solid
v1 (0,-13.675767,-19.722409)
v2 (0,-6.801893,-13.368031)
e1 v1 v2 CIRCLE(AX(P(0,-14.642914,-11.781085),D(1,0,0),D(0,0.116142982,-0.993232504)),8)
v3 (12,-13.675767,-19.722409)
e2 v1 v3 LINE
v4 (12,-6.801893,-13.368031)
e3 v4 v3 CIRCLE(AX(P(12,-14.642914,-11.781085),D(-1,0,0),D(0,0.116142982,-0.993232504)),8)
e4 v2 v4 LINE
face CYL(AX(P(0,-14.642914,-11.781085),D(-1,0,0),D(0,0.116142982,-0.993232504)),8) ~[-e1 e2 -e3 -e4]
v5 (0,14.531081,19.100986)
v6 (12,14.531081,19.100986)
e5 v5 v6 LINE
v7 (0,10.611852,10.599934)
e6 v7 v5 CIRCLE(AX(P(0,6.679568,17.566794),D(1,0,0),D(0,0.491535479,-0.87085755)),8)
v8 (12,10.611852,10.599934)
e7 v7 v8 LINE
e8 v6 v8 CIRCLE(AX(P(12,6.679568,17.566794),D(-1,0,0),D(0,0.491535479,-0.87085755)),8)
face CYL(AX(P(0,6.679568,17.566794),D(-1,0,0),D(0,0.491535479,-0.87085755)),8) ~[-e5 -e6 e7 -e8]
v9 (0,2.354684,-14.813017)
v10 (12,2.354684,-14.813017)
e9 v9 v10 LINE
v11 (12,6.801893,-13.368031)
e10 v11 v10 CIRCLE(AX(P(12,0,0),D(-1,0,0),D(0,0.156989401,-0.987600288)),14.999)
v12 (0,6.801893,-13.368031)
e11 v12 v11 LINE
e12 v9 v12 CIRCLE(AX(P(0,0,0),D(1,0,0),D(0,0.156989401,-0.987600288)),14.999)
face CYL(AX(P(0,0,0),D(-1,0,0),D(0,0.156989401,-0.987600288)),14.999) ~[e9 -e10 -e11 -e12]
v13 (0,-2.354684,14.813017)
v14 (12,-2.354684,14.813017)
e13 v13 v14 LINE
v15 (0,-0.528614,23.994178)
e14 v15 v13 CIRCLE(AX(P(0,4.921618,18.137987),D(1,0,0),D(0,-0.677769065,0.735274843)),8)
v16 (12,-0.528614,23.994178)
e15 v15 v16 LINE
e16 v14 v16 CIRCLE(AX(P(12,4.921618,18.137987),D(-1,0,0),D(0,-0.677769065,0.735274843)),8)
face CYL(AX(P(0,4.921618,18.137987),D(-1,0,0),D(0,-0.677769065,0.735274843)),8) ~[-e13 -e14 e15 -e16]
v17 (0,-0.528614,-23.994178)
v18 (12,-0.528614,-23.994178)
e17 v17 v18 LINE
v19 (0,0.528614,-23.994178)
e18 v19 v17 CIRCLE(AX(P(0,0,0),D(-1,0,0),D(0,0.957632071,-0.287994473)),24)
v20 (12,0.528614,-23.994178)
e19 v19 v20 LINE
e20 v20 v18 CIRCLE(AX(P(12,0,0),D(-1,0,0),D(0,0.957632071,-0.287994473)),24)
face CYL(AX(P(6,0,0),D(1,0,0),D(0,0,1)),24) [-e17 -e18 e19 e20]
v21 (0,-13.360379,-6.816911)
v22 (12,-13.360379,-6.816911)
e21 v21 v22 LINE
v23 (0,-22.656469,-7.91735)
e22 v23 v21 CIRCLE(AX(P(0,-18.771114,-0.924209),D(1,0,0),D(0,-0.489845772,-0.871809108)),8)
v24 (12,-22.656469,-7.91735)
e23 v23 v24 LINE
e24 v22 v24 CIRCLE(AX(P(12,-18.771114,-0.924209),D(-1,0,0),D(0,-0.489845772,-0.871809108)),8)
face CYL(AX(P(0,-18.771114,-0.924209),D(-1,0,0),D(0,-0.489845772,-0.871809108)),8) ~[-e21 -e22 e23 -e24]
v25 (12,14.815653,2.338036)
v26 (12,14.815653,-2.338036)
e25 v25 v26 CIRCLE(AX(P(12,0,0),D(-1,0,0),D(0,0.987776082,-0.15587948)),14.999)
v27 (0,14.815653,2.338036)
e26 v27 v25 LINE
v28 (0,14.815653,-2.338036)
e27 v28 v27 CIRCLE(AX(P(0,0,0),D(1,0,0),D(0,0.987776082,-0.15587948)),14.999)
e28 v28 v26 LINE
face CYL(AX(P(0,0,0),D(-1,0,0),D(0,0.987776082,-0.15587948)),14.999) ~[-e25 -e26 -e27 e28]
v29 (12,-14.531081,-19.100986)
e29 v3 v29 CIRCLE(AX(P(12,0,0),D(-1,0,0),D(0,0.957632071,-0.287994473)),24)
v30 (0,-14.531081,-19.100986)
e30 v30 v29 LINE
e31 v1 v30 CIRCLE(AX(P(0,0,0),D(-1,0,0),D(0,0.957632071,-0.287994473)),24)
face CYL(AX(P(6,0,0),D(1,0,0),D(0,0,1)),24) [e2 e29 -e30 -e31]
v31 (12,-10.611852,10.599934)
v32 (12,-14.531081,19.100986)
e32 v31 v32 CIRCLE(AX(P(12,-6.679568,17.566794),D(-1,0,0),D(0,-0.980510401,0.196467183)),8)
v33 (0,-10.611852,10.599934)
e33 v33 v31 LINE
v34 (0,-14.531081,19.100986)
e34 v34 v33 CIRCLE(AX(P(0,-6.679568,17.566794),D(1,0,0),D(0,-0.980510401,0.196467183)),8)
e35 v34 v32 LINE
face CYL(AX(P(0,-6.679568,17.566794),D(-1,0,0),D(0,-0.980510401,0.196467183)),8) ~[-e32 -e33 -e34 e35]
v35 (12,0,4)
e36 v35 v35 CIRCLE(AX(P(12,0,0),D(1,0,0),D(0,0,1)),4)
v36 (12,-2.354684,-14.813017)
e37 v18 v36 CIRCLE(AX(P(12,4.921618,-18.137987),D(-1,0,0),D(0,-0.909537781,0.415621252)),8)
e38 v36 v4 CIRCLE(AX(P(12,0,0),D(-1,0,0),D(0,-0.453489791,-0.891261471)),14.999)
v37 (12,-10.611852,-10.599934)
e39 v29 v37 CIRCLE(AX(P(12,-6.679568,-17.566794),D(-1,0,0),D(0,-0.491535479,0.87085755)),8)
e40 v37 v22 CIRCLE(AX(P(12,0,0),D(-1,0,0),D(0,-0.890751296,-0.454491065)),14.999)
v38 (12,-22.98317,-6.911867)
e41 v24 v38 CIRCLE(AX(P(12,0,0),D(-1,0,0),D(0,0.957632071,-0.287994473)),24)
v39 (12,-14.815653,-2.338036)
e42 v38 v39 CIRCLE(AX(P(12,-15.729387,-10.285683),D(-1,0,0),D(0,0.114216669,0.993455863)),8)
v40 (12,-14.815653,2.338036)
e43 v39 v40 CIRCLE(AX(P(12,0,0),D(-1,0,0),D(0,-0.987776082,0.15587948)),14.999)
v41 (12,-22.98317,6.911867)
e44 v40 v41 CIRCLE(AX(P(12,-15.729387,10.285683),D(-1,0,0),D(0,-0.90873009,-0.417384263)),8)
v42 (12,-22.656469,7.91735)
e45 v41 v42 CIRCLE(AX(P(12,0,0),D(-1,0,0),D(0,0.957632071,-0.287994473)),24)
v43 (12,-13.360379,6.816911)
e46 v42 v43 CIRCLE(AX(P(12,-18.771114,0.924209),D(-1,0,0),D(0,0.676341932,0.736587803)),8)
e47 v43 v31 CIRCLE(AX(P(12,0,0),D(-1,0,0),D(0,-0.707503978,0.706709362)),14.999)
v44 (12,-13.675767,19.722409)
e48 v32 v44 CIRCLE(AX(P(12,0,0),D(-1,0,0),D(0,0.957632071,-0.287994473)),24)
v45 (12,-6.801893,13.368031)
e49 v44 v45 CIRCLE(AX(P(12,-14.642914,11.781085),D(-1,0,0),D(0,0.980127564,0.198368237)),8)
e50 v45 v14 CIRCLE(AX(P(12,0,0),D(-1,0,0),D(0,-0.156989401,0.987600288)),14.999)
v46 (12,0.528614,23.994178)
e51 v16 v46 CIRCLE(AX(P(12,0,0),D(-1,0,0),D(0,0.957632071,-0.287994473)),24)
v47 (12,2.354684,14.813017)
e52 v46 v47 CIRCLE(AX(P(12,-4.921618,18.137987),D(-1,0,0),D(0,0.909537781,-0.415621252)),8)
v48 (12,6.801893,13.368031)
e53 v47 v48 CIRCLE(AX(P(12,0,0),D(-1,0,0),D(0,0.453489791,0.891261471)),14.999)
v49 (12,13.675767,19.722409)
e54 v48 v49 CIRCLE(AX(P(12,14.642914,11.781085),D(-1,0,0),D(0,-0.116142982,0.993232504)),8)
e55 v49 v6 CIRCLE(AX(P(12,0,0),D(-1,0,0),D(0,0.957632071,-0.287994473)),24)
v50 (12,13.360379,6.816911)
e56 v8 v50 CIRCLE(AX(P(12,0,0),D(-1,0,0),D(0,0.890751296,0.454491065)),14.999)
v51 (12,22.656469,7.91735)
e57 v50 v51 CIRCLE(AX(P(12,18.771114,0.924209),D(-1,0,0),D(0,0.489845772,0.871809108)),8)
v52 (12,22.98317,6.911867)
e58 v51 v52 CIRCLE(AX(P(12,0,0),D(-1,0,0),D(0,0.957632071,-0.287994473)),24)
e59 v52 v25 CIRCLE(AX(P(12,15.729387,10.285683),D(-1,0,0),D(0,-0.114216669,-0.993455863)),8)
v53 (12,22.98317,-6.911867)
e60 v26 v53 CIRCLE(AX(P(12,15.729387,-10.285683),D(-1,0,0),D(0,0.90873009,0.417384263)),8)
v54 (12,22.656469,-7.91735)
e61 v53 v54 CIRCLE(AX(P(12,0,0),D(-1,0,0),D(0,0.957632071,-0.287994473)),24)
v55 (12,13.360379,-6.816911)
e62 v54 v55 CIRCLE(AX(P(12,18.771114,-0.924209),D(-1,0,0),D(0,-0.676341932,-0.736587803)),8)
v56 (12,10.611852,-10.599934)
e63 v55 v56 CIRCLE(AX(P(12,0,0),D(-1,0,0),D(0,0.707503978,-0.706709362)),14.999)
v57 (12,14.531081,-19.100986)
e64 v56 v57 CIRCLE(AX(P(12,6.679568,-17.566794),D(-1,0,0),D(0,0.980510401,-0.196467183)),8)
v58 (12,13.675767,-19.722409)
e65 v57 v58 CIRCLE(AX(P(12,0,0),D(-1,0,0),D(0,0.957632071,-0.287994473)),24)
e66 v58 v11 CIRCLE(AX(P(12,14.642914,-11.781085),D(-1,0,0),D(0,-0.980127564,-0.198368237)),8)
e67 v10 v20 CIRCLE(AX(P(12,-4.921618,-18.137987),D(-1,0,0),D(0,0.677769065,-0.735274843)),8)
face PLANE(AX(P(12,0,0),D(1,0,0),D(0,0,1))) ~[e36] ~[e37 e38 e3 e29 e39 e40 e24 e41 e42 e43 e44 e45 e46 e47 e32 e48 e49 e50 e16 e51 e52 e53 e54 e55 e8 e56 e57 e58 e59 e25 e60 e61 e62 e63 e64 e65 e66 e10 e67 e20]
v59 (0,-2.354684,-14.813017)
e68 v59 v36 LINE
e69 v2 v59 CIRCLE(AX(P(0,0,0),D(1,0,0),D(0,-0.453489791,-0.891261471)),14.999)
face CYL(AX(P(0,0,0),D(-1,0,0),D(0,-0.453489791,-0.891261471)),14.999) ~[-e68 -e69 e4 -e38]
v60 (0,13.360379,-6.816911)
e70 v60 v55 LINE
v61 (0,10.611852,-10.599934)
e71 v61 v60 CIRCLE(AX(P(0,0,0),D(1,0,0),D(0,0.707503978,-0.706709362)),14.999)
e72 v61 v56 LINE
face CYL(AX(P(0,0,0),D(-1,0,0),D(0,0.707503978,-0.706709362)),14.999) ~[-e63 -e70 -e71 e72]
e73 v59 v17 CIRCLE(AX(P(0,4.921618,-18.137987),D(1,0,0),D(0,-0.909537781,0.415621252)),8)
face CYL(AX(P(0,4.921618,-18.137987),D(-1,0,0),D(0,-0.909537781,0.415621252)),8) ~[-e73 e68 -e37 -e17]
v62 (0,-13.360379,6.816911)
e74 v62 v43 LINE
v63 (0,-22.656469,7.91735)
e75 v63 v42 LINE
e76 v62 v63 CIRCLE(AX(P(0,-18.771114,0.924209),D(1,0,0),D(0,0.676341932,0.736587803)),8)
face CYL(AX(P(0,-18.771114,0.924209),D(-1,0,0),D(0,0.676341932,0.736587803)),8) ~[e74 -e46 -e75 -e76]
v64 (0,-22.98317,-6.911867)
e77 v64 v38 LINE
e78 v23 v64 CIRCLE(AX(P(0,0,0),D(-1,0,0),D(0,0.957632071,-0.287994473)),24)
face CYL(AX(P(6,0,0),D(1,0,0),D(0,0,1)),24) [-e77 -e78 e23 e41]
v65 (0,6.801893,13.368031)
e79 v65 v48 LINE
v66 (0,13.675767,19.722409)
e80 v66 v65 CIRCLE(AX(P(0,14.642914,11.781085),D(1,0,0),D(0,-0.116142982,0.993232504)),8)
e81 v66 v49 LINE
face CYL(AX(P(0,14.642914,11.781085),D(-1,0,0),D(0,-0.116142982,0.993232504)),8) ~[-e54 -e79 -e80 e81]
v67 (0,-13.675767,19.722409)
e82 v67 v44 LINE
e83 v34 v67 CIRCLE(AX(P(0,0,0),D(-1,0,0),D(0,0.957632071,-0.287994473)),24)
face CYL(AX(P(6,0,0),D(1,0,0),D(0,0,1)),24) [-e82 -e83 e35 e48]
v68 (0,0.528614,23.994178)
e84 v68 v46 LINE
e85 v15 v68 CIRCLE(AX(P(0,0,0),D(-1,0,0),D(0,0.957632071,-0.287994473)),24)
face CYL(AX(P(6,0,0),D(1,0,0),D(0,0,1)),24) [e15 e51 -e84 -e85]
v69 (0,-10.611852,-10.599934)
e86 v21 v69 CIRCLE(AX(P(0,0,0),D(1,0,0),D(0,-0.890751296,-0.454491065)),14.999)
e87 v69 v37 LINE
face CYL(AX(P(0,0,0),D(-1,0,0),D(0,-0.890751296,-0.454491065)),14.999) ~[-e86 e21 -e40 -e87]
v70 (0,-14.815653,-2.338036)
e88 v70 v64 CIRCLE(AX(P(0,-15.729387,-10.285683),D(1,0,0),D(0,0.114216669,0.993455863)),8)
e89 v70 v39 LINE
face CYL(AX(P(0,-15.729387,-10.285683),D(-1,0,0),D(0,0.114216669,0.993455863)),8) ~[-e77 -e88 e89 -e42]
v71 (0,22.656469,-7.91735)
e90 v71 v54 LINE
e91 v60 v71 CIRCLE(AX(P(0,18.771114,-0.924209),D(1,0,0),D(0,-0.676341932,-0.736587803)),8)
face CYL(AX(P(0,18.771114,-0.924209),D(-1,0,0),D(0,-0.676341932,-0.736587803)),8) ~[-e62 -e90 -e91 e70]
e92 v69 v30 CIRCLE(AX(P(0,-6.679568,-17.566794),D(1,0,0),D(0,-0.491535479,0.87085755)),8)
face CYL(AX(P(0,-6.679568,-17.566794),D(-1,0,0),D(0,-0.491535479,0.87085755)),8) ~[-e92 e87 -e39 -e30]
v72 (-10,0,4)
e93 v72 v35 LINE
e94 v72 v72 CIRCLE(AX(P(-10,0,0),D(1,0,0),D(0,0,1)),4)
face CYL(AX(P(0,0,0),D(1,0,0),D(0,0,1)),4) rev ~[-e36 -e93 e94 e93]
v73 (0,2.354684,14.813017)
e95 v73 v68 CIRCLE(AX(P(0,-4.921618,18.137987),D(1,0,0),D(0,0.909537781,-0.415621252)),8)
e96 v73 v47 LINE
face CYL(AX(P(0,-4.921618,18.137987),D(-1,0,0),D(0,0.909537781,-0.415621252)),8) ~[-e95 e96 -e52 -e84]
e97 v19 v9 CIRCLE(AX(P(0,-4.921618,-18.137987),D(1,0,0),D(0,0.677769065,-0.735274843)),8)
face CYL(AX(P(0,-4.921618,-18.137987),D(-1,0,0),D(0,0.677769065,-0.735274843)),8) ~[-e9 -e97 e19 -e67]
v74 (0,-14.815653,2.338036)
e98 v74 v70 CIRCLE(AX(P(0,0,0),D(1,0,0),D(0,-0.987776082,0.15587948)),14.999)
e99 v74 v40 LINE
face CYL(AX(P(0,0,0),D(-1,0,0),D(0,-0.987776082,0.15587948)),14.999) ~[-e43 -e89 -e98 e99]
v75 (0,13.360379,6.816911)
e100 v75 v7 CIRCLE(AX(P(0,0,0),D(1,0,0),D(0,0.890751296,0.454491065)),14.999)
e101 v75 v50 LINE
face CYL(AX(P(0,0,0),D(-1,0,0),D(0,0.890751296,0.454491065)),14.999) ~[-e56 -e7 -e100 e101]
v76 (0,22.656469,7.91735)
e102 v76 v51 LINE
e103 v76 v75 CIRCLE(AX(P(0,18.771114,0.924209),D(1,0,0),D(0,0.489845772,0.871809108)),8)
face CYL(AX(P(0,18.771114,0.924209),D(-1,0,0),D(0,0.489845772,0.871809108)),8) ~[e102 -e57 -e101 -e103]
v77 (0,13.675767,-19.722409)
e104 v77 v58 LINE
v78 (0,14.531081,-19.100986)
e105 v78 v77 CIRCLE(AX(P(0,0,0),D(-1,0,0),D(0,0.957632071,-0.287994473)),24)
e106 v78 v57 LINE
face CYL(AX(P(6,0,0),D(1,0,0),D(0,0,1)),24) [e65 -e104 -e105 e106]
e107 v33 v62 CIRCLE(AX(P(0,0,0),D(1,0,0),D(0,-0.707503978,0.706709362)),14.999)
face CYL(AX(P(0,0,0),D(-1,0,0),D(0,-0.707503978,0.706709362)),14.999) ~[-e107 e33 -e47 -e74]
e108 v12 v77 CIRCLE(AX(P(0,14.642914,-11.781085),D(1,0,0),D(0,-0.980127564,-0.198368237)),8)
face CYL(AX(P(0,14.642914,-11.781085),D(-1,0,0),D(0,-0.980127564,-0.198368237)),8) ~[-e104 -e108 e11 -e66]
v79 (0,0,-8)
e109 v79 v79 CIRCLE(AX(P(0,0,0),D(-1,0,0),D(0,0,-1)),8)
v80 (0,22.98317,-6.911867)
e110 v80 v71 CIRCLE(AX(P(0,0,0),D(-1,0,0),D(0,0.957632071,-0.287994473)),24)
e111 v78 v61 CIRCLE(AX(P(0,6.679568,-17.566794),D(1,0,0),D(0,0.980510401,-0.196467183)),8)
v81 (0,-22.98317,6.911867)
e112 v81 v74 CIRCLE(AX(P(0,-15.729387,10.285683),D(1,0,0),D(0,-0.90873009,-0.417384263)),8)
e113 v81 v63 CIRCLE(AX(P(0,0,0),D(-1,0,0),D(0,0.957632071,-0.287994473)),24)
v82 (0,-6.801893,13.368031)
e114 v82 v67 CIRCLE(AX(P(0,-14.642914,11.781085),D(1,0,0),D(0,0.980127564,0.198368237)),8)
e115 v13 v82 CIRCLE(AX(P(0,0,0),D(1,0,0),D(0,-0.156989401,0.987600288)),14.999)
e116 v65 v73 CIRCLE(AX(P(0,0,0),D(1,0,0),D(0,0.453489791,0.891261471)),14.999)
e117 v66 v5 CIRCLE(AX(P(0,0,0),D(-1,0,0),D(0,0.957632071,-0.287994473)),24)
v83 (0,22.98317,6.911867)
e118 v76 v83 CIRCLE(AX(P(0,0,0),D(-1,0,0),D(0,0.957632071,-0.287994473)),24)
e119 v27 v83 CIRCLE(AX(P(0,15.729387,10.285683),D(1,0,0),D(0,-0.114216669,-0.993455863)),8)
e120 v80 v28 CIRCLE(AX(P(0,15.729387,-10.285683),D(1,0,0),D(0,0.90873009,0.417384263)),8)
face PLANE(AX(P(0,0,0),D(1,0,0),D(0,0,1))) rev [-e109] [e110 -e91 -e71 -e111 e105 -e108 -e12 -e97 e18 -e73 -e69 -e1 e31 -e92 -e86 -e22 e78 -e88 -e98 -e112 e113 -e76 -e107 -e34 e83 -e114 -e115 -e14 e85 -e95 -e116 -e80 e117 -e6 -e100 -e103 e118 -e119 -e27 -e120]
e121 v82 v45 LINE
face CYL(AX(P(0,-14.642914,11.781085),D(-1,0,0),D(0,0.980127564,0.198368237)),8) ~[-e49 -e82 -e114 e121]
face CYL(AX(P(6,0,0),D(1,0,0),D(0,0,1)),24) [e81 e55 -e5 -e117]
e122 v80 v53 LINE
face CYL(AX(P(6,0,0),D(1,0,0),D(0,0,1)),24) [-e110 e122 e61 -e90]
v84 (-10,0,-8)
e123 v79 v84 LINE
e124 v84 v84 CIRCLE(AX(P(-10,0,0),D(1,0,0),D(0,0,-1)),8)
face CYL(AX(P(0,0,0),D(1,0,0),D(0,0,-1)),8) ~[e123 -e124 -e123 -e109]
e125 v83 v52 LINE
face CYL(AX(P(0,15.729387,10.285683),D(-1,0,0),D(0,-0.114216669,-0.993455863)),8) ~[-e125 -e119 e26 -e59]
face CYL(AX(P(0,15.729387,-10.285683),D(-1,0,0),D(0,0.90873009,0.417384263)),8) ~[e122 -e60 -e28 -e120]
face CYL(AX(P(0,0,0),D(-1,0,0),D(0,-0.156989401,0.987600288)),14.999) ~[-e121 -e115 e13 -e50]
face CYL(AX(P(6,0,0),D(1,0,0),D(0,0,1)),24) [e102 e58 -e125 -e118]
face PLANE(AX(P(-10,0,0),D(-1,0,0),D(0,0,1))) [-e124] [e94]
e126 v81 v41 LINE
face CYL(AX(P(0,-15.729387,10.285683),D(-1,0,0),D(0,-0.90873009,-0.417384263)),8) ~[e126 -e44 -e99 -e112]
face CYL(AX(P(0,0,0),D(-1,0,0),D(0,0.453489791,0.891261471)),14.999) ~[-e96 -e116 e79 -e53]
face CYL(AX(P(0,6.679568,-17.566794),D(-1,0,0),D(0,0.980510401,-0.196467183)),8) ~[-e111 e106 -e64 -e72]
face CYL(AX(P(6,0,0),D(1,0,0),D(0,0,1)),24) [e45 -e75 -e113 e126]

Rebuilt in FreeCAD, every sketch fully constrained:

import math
import FreeCAD as App
import Part
import Sketcher

V = App.Vector

doc = App.newDocument("Part")
params = doc.addObject("Spreadsheet::Sheet", "Params")
for row, (alias, value) in enumerate([
    ("sketch1_width", "12 mm"),
    ("sketch1_height", "24 mm"),
    ("revolution_angle", "360 deg"),
    ("sketch2_radius", "8 mm"),
    ("sketch3_diameter", "16 mm"),
    ("pad1_length", "38.000051 mm"),
    ("sketch4_diameter", "8 mm"),
    ("pocket2_length", "24.000102 mm"),
    ("pocket3_length", "43 mm"),
], start=1):
    params.set(f"A{row}", alias)
    params.set(f"B{row}", "=" + value)
    params.setAlias(f"B{row}", alias)

body = doc.addObject("PartDesign::Body", "Body")

sketch1 = body.newObject("Sketcher::SketchObject", "Sketch")
sketch1.AttachmentSupport = (doc.getObject("XZ_Plane"), [""])
sketch1.MapMode = "FlatFace"
sketch1.addGeometry(Part.LineSegment(V(0, -24, 0), V(0, 0, 0)), False)
sketch1.addGeometry(Part.LineSegment(V(0, 0, 0), V(12, 0, 0)), False)
sketch1.addGeometry(Part.LineSegment(V(12, 0, 0), V(12, -24, 0)), False)
sketch1.addGeometry(Part.LineSegment(V(12, -24, 0), V(0, -24, 0)), False)
sketch1.addConstraint(Sketcher.Constraint("Coincident", 0, 2, 1, 1))
sketch1.addConstraint(Sketcher.Constraint("Coincident", 1, 2, 2, 1))
sketch1.addConstraint(Sketcher.Constraint("Coincident", 2, 2, 3, 1))
sketch1.addConstraint(Sketcher.Constraint("Coincident", 3, 2, 0, 1))
sketch1.addConstraint(Sketcher.Constraint("Vertical", 0))
sketch1.addConstraint(Sketcher.Constraint("Horizontal", 1))
sketch1.addConstraint(Sketcher.Constraint("Vertical", 2))
sketch1.addConstraint(Sketcher.Constraint("Horizontal", 3))
sketch1.addConstraint(Sketcher.Constraint("Coincident", 0, 2, -1, 1))
sketch1.addConstraint(Sketcher.Constraint("DistanceX", 1, 1, 1, 2, 12.0))
sketch1.addConstraint(Sketcher.Constraint("DistanceY", 0, 1, 0, 2, 24.0))
sketch1.setExpression("Constraints[9]", "Params.sketch1_width")
sketch1.setExpression("Constraints[10]", "Params.sketch1_height")
revolution = body.newObject("PartDesign::Revolution", "Revolution")
revolution.Profile = sketch1
revolution.ReferenceAxis = (sketch1, ["H_Axis"])
revolution.setExpression("Angle", "Params.revolution_angle")

sketch2 = body.newObject("Sketcher::SketchObject", "Sketch001")
sketch2.AttachmentSupport = (doc.getObject("YZ_Plane"), [""])
sketch2.MapMode = "FlatFace"
sketch2.addGeometry(Part.ArcOfCircle(Part.Circle(V(0, 0, 0), V(0, 0, 1), 15), math.radians(-8.97), math.radians(8.97)), False)
sketch2.addGeometry(Part.ArcOfCircle(Part.Circle(V(15.7, -10.3, 0), V(0, 0, 1), 8), math.radians(25), math.radians(97)), False)
sketch2.addGeometry(Part.ArcOfCircle(Part.Circle(V(0, 0, 0), V(0, 0, 1), 24), math.radians(-17), math.radians(17)), False)
sketch2.addGeometry(Part.ArcOfCircle(Part.Circle(V(15.7, 10.3, 0), V(0, 0, 1), 8), math.radians(-97), math.radians(-25)), False)
sketch2.addConstraint(Sketcher.Constraint("Coincident", 0, 1, 1, 2))
sketch2.addConstraint(Sketcher.Constraint("Coincident", 1, 1, 2, 1))
sketch2.addConstraint(Sketcher.Constraint("Coincident", 2, 2, 3, 2))
sketch2.addConstraint(Sketcher.Constraint("Coincident", 3, 1, 0, 2))
sketch2.addConstraint(Sketcher.Constraint("Coincident", 0, 3, -1, 1))
sketch2.addConstraint(Sketcher.Constraint("Coincident", 2, 3, -1, 1))
sketch2.addConstraint(Sketcher.Constraint("Equal", 1, 3))
sketch2.addConstraint(Sketcher.Constraint("Symmetric", 1, 3, 3, 3, -1))
sketch2.addConstraint(Sketcher.Constraint("Radius", 1, 8.0))
sketch2.addConstraint(Sketcher.Constraint("Radius", 0, 14.999))
sketch2.addConstraint(Sketcher.Constraint("Radius", 2, 24.0254))
sketch2.addConstraint(Sketcher.Constraint("DistanceY", 1, 1, -1, 1, 6.946609))
sketch2.addConstraint(Sketcher.Constraint("DistanceY", 0, 1, 3, 3, 12.62372))
sketch2.setExpression("Constraints[8]", "Params.sketch2_radius")
pocket1 = body.newObject("PartDesign::Pocket", "Pocket")
pocket1.Profile = sketch2
pocket1.Type = "ThroughAll"
pocket1.Reversed = True
doc.recompute()

polarpattern = body.newObject("PartDesign::PolarPattern", "PolarPattern")
polarpattern.Originals = [pocket1]
polarpattern.Axis = (doc.getObject("X_Axis"), [""])
polarpattern.Angle = 360
polarpattern.Occurrences = 10
body.Tip = polarpattern

sketch3 = body.newObject("Sketcher::SketchObject", "Sketch002")
sketch3.AttachmentSupport = (doc.getObject("YZ_Plane"), [""])
sketch3.MapMode = "FlatFace"
sketch3.addGeometry(Part.Circle(V(0, 0, 0), V(0, 0, 1), 8), False)
sketch3.addConstraint(Sketcher.Constraint("Coincident", 0, 3, -1, 1))
sketch3.addConstraint(Sketcher.Constraint("Diameter", 0, 16.0))
sketch3.setExpression("Constraints[1]", "Params.sketch3_diameter")
pad1 = body.newObject("PartDesign::Pad", "Pad")
pad1.Profile = sketch3
pad1.setExpression("Length", "Params.pad1_length")
pad1.Reversed = True

sketch4 = body.newObject("Sketcher::SketchObject", "Sketch003")
sketch4.AttachmentSupport = (doc.getObject("YZ_Plane"), [""])
sketch4.MapMode = "FlatFace"
sketch4.addGeometry(Part.Circle(V(0, 0, 0), V(0, 0, 1), 4), False)
sketch4.addConstraint(Sketcher.Constraint("Coincident", 0, 3, -1, 1))
sketch4.addConstraint(Sketcher.Constraint("Diameter", 0, 8.0))
sketch4.setExpression("Constraints[1]", "Params.sketch4_diameter")
pocket2 = body.newObject("PartDesign::Pocket", "Pocket001")
pocket2.Profile = sketch4
pocket2.setExpression("Length", "Params.pocket2_length")
pocket2.Midplane = True

sketch5 = body.newObject("Sketcher::SketchObject", "Sketch004")
sketch5.AttachmentSupport = (doc.getObject("YZ_Plane"), [""])
sketch5.MapMode = "FlatFace"
sketch5.AttachmentOffset = App.Placement(V(0, 0, -10), App.Rotation())
sketch5.addGeometry(Part.Circle(V(0, 0, 0), V(0, 0, 1), 10), False)
sketch5.addConstraint(Sketcher.Constraint("Coincident", 0, 3, -1, 1))
sketch5.addConstraint(Sketcher.Constraint("Diameter", 0, 20.541387))
pocket3 = body.newObject("PartDesign::Pocket", "Pocket002")
pocket3.Profile = sketch5
pocket3.setExpression("Length", "Params.pocket3_length")

doc.recompute()
